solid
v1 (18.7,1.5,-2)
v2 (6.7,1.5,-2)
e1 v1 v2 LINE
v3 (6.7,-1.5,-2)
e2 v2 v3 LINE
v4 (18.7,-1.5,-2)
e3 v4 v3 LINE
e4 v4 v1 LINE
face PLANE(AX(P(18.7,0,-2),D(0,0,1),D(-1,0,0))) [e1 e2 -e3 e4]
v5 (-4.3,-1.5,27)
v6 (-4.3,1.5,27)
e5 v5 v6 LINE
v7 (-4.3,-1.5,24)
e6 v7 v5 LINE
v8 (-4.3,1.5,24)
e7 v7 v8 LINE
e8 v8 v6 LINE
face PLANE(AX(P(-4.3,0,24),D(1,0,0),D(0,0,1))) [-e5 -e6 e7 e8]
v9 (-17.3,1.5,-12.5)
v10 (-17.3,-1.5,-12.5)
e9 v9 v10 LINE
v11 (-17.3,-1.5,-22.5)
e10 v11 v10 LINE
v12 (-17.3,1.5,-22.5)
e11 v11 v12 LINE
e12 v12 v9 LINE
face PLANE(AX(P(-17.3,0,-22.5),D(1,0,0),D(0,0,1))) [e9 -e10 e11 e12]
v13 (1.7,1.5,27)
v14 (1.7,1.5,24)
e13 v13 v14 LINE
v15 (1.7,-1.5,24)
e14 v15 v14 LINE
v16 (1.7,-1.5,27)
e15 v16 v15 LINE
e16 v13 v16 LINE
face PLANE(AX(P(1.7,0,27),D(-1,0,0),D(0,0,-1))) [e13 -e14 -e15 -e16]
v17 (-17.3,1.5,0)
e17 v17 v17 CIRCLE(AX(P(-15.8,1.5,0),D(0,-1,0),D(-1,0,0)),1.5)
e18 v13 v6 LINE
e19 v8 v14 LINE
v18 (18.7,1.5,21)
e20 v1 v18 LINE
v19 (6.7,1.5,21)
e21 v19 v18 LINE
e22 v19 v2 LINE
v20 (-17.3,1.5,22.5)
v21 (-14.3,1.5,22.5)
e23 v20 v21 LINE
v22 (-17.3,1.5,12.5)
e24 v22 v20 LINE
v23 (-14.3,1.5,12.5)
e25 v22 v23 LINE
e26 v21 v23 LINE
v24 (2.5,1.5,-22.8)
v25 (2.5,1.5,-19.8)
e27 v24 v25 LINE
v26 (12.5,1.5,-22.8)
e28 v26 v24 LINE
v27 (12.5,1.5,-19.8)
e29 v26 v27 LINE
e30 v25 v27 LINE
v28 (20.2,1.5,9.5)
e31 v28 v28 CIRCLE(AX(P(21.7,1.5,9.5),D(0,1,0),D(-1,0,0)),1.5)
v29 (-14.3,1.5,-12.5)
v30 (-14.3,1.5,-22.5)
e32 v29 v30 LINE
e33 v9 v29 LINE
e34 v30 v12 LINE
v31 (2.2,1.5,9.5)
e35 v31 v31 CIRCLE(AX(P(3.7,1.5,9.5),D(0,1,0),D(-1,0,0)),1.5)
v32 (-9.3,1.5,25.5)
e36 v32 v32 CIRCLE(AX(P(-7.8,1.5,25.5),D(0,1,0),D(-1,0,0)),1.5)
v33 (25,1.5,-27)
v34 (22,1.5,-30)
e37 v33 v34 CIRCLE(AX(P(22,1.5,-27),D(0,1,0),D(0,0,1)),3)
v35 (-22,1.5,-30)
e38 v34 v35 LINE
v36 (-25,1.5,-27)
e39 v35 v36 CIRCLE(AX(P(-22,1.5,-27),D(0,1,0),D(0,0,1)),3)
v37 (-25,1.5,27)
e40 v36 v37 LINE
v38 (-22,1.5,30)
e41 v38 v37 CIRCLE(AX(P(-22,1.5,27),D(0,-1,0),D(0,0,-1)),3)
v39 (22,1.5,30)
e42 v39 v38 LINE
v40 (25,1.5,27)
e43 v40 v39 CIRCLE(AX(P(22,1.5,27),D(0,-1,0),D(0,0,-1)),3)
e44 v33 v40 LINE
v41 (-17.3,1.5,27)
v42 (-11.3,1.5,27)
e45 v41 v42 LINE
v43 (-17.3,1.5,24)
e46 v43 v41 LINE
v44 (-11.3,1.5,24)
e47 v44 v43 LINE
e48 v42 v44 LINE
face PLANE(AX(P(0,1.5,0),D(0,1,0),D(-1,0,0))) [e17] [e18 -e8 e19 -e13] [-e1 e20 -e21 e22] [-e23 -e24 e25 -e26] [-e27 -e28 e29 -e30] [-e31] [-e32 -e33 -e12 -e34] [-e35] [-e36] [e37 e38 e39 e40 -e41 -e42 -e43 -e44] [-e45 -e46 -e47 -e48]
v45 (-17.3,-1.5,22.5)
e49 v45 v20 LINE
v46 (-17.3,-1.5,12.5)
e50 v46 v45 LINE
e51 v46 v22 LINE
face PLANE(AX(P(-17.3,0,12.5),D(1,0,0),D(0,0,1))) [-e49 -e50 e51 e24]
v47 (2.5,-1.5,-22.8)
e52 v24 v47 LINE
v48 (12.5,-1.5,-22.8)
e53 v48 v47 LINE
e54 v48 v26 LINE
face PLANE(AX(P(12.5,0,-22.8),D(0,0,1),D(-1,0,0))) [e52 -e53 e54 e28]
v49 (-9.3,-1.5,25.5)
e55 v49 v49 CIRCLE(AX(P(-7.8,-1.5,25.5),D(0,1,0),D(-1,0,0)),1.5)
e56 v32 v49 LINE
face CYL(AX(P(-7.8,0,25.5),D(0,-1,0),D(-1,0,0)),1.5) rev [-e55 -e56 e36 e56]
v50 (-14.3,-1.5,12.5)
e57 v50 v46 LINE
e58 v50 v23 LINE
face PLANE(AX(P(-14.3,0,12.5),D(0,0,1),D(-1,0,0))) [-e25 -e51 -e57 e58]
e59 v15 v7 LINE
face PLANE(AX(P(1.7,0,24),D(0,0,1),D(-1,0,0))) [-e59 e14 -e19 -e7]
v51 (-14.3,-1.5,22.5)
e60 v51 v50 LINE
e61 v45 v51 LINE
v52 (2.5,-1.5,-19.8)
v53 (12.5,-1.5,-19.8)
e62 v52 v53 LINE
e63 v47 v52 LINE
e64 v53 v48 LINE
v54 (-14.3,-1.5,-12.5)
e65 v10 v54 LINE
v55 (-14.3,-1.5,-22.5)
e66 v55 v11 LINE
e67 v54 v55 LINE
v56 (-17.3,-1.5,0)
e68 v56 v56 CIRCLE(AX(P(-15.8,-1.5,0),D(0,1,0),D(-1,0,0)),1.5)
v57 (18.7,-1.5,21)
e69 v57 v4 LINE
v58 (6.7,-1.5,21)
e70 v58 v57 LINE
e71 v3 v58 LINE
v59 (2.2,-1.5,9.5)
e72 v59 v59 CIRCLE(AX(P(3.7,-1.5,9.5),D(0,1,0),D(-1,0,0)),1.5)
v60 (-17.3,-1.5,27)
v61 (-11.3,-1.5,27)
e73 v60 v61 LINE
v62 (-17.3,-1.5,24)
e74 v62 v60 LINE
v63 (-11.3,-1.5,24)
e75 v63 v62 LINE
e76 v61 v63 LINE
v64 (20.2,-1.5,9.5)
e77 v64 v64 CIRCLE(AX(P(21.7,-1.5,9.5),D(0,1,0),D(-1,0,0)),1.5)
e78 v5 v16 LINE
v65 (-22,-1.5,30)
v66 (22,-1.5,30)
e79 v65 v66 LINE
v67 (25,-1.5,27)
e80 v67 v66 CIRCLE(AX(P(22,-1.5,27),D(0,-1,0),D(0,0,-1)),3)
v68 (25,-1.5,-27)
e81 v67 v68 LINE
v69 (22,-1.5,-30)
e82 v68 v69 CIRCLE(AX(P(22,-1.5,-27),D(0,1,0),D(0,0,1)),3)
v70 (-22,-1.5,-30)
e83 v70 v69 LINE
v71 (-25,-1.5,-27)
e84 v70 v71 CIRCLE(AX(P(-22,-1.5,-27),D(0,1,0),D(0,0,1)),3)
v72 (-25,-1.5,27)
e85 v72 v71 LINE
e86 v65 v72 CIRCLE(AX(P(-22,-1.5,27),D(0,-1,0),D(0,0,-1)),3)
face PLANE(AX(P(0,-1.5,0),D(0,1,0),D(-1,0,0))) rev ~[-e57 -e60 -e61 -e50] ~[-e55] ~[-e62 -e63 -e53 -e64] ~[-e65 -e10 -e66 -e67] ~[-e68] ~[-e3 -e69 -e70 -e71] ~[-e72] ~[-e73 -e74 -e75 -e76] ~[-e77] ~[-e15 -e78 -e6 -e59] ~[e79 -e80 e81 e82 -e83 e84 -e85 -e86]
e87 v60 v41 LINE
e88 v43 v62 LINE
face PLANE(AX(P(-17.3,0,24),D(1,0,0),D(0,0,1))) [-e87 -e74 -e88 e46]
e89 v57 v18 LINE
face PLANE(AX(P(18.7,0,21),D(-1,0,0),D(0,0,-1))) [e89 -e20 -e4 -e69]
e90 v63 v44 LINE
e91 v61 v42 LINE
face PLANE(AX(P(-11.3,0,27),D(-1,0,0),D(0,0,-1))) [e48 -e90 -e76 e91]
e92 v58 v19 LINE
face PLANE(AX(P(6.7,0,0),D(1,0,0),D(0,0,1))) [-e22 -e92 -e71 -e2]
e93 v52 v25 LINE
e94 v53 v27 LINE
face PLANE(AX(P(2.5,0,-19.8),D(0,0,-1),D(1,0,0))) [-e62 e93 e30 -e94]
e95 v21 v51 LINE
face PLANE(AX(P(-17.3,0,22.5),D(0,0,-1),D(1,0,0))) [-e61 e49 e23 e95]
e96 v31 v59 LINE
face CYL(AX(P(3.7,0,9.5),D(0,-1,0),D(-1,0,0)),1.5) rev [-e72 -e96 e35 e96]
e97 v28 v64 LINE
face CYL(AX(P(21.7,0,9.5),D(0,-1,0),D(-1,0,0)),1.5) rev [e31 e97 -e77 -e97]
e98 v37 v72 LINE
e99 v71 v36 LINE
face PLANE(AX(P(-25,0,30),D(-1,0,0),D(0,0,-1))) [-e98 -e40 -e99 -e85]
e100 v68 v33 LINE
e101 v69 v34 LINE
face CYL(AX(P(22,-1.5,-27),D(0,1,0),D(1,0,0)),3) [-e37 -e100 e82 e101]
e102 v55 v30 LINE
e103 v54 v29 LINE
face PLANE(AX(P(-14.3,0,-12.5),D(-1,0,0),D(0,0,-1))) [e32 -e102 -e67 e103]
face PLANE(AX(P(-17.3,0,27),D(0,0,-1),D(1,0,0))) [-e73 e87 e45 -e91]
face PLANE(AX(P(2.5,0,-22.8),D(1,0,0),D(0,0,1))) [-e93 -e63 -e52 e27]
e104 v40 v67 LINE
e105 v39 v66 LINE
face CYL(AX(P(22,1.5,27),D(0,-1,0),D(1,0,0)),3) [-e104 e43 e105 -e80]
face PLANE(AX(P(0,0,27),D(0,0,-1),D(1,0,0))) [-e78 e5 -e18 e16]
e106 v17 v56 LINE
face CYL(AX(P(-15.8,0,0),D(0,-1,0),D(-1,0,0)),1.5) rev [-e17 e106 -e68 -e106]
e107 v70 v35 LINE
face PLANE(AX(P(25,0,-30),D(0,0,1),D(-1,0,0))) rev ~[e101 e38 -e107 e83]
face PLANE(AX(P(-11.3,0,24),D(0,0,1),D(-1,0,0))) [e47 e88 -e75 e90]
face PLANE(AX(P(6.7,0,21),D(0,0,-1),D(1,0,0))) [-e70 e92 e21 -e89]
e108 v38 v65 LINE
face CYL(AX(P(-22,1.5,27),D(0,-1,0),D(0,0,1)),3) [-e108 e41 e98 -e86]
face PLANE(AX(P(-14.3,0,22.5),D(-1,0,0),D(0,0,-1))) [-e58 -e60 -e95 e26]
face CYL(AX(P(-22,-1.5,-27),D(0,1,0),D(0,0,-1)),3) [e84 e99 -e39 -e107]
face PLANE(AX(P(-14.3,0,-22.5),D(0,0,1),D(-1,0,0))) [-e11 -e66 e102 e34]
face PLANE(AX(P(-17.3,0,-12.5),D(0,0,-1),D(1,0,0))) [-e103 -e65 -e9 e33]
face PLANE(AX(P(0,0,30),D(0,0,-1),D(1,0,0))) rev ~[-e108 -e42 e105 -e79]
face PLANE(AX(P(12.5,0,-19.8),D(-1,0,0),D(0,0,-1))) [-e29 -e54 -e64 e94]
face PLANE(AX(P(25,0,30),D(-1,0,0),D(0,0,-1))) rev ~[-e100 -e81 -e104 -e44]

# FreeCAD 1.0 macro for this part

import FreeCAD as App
import Part
import Sketcher
Q = App.Units.Quantity


def edges_at(feature, points):
    """Names of the edges that pass closest to the given points."""
    edges = feature.Shape.Edges
    near = lambda p: min(range(len(edges)), key=lambda i: edges[i].distToShape(Part.Vertex(*p))[0])
    return sorted({f"Edge{near(p) + 1}" for p in points})


def add_polygon(sketch, points):
    """Adds a closed chain of lines whose ends are joined by coincident constraints."""
    first, n = sketch.GeometryCount, len(points)
    for a, b in zip(points, points[1:] + points[:1]):
        sketch.addGeometry(Part.LineSegment(App.Vector(*a, 0), App.Vector(*b, 0)), False)
    for i in range(n):
        sketch.addConstraint(Sketcher.Constraint("Coincident", first + i, 2, first + (i + 1) % n, 1))

doc = App.newDocument("Part")
body = doc.addObject("PartDesign::Body", "Body")

# Sketch on XZ plane
sketch1 = body.newObject("Sketcher::SketchObject", "Sketch")
sketch1.AttachmentSupport = (doc.getObject("XZ_Plane"), [""])
sketch1.MapMode = "FlatFace"
add_polygon(sketch1, [(25, 30), (25, -30), (-25, -30), (-25, 30)])  # lines 0-3
add_polygon(sketch1, [(1.7, 27), (-4.3, 27), (-4.3, 24), (1.7, 24)])  # lines 4-7
add_polygon(sketch1, [(6.7, -2), (18.7, -2), (18.7, 21), (6.7, 21)])  # lines 8-11
sketch1.addGeometry(Part.Circle(App.Vector(21.7, 9.5, 0), App.Vector(0, 0, 1), 1.5), False)  # 12
sketch1.addGeometry(Part.Circle(App.Vector(3.7, 9.5, 0), App.Vector(0, 0, 1), 1.5), False)  # 13
sketch1.addGeometry(Part.Circle(App.Vector(-15.8, 0, 0), App.Vector(0, 0, 1), 1.5), False)  # 14
add_polygon(sketch1, [(-17.3, 24), (-11.3, 24), (-11.3, 27), (-17.3, 27)])  # lines 15-18
sketch1.addGeometry(Part.Circle(App.Vector(-7.8, 25.5, 0), App.Vector(0, 0, 1), 1.5), False)  # 19
add_polygon(sketch1, [(-14.3, 22.5), (-17.3, 22.5), (-17.3, 12.5), (-14.3, 12.5)])  # lines 20-23
add_polygon(sketch1, [(2.5, -22.8), (12.5, -22.8), (12.5, -19.8), (2.5, -19.8)])  # lines 24-27
add_polygon(sketch1, [(-17.3, -12.5), (-17.3, -22.5), (-14.3, -22.5), (-14.3, -12.5)])  # lines 28-31
sketch1.addConstraint(Sketcher.Constraint("Vertical", 0))
sketch1.addConstraint(Sketcher.Constraint("Horizontal", 1))
sketch1.addConstraint(Sketcher.Constraint("Vertical", 2))
sketch1.addConstraint(Sketcher.Constraint("Horizontal", 3))
sketch1.addConstraint(Sketcher.Constraint("Horizontal", 4))
sketch1.addConstraint(Sketcher.Constraint("Vertical", 5))
sketch1.addConstraint(Sketcher.Constraint("Horizontal", 6))
sketch1.addConstraint(Sketcher.Constraint("Vertical", 7))
sketch1.addConstraint(Sketcher.Constraint("Horizontal", 8))
sketch1.addConstraint(Sketcher.Constraint("Vertical", 9))
sketch1.addConstraint(Sketcher.Constraint("Horizontal", 10))
sketch1.addConstraint(Sketcher.Constraint("Vertical", 11))
sketch1.addConstraint(Sketcher.Constraint("Horizontal", 15))
sketch1.addConstraint(Sketcher.Constraint("Vertical", 16))
sketch1.addConstraint(Sketcher.Constraint("Horizontal", 17))
sketch1.addConstraint(Sketcher.Constraint("Vertical", 18))
sketch1.addConstraint(Sketcher.Constraint("Horizontal", 20))
sketch1.addConstraint(Sketcher.Constraint("Vertical", 21))
sketch1.addConstraint(Sketcher.Constraint("Horizontal", 22))
sketch1.addConstraint(Sketcher.Constraint("Vertical", 23))
sketch1.addConstraint(Sketcher.Constraint("Horizontal", 24))
sketch1.addConstraint(Sketcher.Constraint("Vertical", 25))
sketch1.addConstraint(Sketcher.Constraint("Horizontal", 26))
sketch1.addConstraint(Sketcher.Constraint("Vertical", 27))
sketch1.addConstraint(Sketcher.Constraint("Vertical", 28))
sketch1.addConstraint(Sketcher.Constraint("Horizontal", 29))
sketch1.addConstraint(Sketcher.Constraint("Vertical", 30))
sketch1.addConstraint(Sketcher.Constraint("Horizontal", 31))
sketch1.addConstraint(Sketcher.Constraint("Equal", 12, 13))
sketch1.addConstraint(Sketcher.Constraint("Equal", 13, 14))
sketch1.addConstraint(Sketcher.Constraint("Equal", 14, 19))
sketch1.addConstraint(Sketcher.Constraint("Symmetric", 0, 2, 2, 2, -1, 1))
sketch1.addConstraint(Sketcher.Constraint("Symmetric", 20, 2, 28, 2, -1))
sketch1.addConstraint(Sketcher.Constraint("Symmetric", 22, 2, 30, 2, -1))
sketch1.addConstraint(Sketcher.Constraint("PointOnObject", 14, 3, -1))
sketch1.addConstraint(Sketcher.Constraint("Horizontal", 12, 3, 13, 3))
sketch1.addConstraint(Sketcher.Constraint("Horizontal", 6, 2, 15, 2))
sketch1.addConstraint(Sketcher.Constraint("Horizontal", 7, 2, 16, 2))
sketch1.addConstraint(Sketcher.Constraint("Vertical", 18, 2, 20, 2))
sketch1.addConstraint(Sketcher.Constraint("Equal", 6, 15))
sketch1.addConstraint(Sketcher.Constraint("Equal", 31, 5))
sketch1.addConstraint(Sketcher.Constraint("Equal", 26, 21))
sketch1.addConstraint(Sketcher.Constraint("Equal", 18, 25))
sketch1.addConstraint(Sketcher.Constraint("Diameter", 12, Q("3 mm")))
sketch1.addConstraint(Sketcher.Constraint("DistanceX", 1, 2, 1, 1, Q("50 mm")))
sketch1.addConstraint(Sketcher.Constraint("DistanceX", 4, 2, 4, 1, Q("6 mm")))
sketch1.addConstraint(Sketcher.Constraint("DistanceX", 8, 1, 8, 2, Q("12 mm")))
sketch1.addConstraint(Sketcher.Constraint("DistanceX", 20, 2, 20, 1, Q("3 mm")))
sketch1.addConstraint(Sketcher.Constraint("DistanceX", 24, 1, 24, 2, Q("10 mm")))
sketch1.addConstraint(Sketcher.Constraint("DistanceY", 0, 2, 0, 1, Q("60 mm")))
sketch1.addConstraint(Sketcher.Constraint("DistanceY", 9, 1, 9, 2, Q("23 mm")))
sketch1.addConstraint(Sketcher.Constraint("DistanceY", 4, 2, 2, 2, Q("3 mm")))
sketch1.addConstraint(Sketcher.Constraint("DistanceX", 8, 2, 12, 3, Q("3 mm")))
sketch1.addConstraint(Sketcher.Constraint("DistanceY", 9, 2, 6, 2, Q("3 mm")))
sketch1.addConstraint(Sketcher.Constraint("DistanceX", 13, 3, 10, 2, Q("3 mm")))
sketch1.addConstraint(Sketcher.Constraint("DistanceY", 20, 2, 19, 3, Q("3 mm")))
sketch1.addConstraint(Sketcher.Constraint("DistanceX", 19, 3, 13, 3, Q("11.5 mm")))
sketch1.addConstraint(Sketcher.Constraint("DistanceY", 19, 3, 4, 2, Q("1.5 mm")))
sketch1.addConstraint(Sketcher.Constraint("DistanceX", 14, 3, 4, 2, Q("11.5 mm")))
sketch1.addConstraint(Sketcher.Constraint("DistanceY", 8, 2, 12, 3, Q("11.5 mm")))
sketch1.addConstraint(Sketcher.Constraint("DistanceX", 21, 2, 14, 3, Q("1.5 mm")))
sketch1.addConstraint(Sketcher.Constraint("DistanceX", 14, 3, 19, 3, Q("8 mm")))
sketch1.addConstraint(Sketcher.Constraint("DistanceX", -1, 1, 12, 3, Q("21.7 mm")))
sketch1.addConstraint(Sketcher.Constraint("DistanceX", -1, 1, 24, 2, Q("12.5 mm")))
sketch1.addConstraint(Sketcher.Constraint("DistanceY", 24, 2, -1, 1, Q("22.8 mm")))
pad1 = body.newObject("PartDesign::Pad", "Pad")
pad1.Profile = sketch1
pad1.Length = 3
pad1.Midplane = True
doc.recompute()

fillet = body.newObject("PartDesign::Fillet", "Fillet")
fillet.Base = (pad1, edges_at(pad1, [
    (-25, 0, 30),
    (25, 0, 30),
    (-25, 0, -30),
    (25, 0, -30),
]))
fillet.Radius = 3

doc.recompute()
